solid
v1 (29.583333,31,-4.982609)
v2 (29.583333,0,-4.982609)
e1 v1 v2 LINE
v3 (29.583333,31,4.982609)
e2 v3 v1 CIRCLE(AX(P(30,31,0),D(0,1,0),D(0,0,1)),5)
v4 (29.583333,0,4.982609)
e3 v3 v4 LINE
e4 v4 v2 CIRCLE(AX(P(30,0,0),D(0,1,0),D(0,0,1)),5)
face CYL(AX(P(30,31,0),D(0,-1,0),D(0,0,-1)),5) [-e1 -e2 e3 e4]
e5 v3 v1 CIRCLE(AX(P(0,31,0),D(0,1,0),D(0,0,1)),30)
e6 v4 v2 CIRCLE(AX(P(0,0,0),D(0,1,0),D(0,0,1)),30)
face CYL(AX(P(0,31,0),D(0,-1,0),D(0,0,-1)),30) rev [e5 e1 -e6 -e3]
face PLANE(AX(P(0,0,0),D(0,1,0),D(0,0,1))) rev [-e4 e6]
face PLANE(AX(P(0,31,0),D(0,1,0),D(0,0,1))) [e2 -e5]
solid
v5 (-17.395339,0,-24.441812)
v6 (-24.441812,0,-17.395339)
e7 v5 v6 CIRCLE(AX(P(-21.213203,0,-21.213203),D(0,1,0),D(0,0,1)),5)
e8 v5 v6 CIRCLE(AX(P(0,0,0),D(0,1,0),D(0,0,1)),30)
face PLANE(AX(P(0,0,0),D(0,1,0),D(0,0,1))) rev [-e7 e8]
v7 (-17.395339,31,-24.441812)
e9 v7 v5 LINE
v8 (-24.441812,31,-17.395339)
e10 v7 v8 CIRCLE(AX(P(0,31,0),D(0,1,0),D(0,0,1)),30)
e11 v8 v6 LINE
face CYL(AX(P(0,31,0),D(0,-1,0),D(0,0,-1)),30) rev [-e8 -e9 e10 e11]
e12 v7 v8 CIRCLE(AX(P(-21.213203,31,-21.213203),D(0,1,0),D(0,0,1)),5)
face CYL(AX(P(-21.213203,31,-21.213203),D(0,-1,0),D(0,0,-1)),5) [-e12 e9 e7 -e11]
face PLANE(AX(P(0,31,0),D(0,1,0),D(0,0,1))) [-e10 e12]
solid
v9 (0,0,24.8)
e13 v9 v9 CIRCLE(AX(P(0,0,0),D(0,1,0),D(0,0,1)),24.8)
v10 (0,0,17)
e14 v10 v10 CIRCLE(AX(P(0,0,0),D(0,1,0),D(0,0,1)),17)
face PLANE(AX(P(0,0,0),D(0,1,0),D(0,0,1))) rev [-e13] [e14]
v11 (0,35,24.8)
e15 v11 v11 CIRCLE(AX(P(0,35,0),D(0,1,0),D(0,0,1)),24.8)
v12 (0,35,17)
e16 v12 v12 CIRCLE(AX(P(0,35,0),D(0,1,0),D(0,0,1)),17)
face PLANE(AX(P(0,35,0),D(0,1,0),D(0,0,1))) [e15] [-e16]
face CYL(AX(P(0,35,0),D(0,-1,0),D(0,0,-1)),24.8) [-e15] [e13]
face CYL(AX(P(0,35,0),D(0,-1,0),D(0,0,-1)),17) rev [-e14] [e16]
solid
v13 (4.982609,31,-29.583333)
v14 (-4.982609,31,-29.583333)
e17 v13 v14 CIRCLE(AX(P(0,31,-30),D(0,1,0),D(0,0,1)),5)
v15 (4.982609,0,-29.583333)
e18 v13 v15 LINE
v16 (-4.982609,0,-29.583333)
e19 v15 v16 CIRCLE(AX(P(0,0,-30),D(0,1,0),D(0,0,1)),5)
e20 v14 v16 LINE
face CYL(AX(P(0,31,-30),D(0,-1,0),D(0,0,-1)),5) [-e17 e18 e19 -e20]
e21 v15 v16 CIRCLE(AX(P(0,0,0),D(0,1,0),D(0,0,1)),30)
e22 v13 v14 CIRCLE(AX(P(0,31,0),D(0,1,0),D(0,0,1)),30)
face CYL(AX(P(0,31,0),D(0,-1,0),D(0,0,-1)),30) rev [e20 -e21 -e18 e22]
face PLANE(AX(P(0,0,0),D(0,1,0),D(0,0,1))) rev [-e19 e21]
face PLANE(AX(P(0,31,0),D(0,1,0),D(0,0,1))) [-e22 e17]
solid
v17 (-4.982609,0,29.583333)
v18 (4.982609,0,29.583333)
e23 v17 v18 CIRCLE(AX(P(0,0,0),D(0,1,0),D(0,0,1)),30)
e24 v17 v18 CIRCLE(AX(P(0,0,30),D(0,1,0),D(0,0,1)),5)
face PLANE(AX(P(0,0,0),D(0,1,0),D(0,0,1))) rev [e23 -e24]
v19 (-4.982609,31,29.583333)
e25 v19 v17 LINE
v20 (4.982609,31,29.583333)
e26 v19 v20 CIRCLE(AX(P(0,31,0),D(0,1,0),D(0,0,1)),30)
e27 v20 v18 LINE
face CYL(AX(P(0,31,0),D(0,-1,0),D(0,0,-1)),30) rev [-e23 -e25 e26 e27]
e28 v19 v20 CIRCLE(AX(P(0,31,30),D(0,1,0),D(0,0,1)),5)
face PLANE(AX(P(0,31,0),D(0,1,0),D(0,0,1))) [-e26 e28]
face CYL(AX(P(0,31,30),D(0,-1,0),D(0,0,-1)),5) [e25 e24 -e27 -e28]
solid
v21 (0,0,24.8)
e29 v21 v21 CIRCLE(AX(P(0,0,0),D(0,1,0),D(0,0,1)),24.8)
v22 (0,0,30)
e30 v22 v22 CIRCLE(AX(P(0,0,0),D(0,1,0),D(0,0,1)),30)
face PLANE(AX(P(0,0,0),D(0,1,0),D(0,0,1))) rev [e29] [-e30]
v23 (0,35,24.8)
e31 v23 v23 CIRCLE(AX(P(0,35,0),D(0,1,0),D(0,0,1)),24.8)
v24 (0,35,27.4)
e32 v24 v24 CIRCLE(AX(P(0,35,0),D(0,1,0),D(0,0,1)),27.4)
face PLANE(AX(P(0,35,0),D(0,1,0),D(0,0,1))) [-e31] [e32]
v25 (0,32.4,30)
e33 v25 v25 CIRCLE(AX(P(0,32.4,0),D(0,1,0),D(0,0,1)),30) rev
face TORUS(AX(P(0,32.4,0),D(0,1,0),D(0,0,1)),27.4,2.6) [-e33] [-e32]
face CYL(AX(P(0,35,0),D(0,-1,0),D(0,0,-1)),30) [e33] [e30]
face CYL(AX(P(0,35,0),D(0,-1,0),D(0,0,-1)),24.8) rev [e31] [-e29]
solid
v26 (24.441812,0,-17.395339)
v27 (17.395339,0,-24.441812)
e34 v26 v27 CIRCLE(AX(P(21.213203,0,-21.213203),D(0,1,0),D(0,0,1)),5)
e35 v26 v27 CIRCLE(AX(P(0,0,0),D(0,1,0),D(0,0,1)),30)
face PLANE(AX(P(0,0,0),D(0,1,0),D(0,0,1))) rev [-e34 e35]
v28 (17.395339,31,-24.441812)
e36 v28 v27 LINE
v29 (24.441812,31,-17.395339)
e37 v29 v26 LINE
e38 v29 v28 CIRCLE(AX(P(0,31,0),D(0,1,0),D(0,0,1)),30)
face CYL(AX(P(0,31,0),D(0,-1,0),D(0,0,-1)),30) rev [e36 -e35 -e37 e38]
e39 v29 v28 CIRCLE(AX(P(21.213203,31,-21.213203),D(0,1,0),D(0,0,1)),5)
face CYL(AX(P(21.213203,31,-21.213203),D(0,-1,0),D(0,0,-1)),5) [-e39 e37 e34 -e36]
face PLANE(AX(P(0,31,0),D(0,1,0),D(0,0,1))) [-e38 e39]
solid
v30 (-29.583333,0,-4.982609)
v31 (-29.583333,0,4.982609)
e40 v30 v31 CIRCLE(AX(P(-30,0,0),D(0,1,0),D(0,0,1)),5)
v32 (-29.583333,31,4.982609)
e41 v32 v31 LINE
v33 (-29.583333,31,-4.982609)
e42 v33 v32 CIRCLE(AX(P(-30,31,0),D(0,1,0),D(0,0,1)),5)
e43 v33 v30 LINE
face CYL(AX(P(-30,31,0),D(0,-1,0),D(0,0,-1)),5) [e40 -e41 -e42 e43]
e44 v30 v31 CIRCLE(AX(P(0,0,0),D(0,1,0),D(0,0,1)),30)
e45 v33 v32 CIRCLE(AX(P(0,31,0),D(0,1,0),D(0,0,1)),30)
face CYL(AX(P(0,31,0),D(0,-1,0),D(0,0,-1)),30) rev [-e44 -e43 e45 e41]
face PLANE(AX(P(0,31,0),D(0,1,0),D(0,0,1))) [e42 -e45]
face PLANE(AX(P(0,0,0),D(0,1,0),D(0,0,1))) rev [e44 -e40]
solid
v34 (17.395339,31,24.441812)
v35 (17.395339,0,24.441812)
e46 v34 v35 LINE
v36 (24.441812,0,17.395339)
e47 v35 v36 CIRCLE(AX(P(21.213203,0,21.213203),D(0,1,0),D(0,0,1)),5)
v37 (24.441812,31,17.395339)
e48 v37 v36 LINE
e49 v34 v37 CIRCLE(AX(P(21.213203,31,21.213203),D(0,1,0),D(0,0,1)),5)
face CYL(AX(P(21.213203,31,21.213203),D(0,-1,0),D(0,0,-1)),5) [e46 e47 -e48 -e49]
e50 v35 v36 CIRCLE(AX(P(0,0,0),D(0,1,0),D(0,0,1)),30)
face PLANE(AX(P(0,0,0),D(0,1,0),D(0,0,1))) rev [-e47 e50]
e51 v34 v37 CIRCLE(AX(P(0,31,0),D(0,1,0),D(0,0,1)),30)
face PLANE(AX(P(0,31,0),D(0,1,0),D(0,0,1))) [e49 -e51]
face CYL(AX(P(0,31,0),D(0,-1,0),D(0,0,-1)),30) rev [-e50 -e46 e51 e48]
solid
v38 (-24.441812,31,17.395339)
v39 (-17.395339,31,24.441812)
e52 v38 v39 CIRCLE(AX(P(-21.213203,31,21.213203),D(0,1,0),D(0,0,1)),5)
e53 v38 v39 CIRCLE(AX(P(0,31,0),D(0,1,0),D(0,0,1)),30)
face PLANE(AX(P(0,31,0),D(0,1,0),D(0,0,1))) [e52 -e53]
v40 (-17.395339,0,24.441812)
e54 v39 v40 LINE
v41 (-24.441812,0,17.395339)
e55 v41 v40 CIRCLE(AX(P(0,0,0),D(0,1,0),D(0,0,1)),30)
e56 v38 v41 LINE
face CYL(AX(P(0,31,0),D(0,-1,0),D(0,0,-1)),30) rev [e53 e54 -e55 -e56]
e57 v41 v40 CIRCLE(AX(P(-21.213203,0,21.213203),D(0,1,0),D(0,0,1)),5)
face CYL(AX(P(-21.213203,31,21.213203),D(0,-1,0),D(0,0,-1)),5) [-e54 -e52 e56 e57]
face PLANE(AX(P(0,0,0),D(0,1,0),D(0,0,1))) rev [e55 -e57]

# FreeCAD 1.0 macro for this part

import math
import FreeCAD as App
import Part
import Sketcher
Q = App.Units.Quantity


def edges_at(feature, points):
    """Names of the edges that pass closest to the given points."""
    edges = feature.Shape.Edges
    near = lambda p: min(range(len(edges)), key=lambda i: edges[i].distToShape(Part.Vertex(*p))[0])
    return sorted({f"Edge{near(p) + 1}" for p in points})

doc = App.newDocument("Part")
body = doc.addObject("PartDesign::Body", "Body")

# Sketch on XZ plane
sketch1 = body.newObject("Sketcher::SketchObject", "Sketch")
sketch1.AttachmentSupport = (doc.getObject("XZ_Plane"), [""])
sketch1.MapMode = "FlatFace"
sketch1.addGeometry([
    Part.Circle(App.Vector(0, 0, 0), App.Vector(0, 0, 1), 30),
    Part.Circle(App.Vector(0, 0, 0), App.Vector(0, 0, 1), 25),
], False)
sketch1.addConstraint([
    Sketcher.Constraint("Coincident", 0, 3, -1, 1),
    Sketcher.Constraint("Coincident", 1, 3, -1, 1),
    Sketcher.Constraint("Diameter", 0, Q("60 mm")),
    Sketcher.Constraint("Diameter", 1, Q("49.6 mm")),
])
pad1 = body.newObject("PartDesign::Pad", "Pad")
pad1.Profile = sketch1
pad1.Length = 35
pad1.Reversed = True
doc.recompute()

fillet = body.newObject("PartDesign::Fillet", "Fillet")
fillet.Base = (pad1, edges_at(pad1, [(0, 35, -30)]))
fillet.Radius = 2.6
body2 = doc.addObject("PartDesign::Body", "Body001")

# Sketch on XZ plane
sketch2 = body2.newObject("Sketcher::SketchObject", "Sketch001")
sketch2.AttachmentSupport = (doc.getObject("XZ_Plane001"), [""])
sketch2.MapMode = "FlatFace"
sketch2.addGeometry([
    Part.ArcOfCircle(Part.Circle(App.Vector(0, 30, 0), App.Vector(0, 0, 1), 5), math.radians(-5), math.radians(185)),
    Part.ArcOfCircle(Part.Circle(App.Vector(0, 0, 0), App.Vector(0, 0, 1), 30), math.radians(80.44), math.radians(99.56)),
], False)
sketch2.addConstraint([
    Sketcher.Constraint("Coincident", 0, 1, 1, 1),
    Sketcher.Constraint("Coincident", 1, 2, 0, 2),
    Sketcher.Constraint("Coincident", 1, 3, -1, 1),
    Sketcher.Constraint("PointOnObject", 0, 3, -2),
    Sketcher.Constraint("Radius", 0, Q("5 mm")),
    Sketcher.Constraint("Radius", 1, Q("30 mm")),
    Sketcher.Constraint("DistanceY", -1, 1, 0, 3, Q("30 mm")),
])
pad2 = body2.newObject("PartDesign::Pad", "Pad001")
pad2.Profile = sketch2
pad2.Length = 31
pad2.Reversed = True
body3 = doc.addObject("PartDesign::Body", "Body002")

# Sketch on XZ plane
sketch3 = body3.newObject("Sketcher::SketchObject", "Sketch002")
sketch3.AttachmentSupport = (doc.getObject("XZ_Plane002"), [""])
sketch3.MapMode = "FlatFace"
sketch3.addGeometry([
    Part.ArcOfCircle(Part.Circle(App.Vector(21, 21, 0), App.Vector(0, 0, 1), 5), math.radians(-50), math.radians(140)),
    Part.ArcOfCircle(Part.Circle(App.Vector(0, 0, 0), App.Vector(0, 0, 1), 30), math.radians(35.44), math.radians(54.56)),
], False)
sketch3.addConstraint([
    Sketcher.Constraint("Coincident", 0, 1, 1, 1),
    Sketcher.Constraint("Coincident", 1, 2, 0, 2),
    Sketcher.Constraint("Coincident", 1, 3, -1, 1),
    Sketcher.Constraint("Radius", 0, Q("5 mm")),
    Sketcher.Constraint("Radius", 1, Q("30 mm")),
    Sketcher.Constraint("DistanceX", -1, 1, 0, 1, Q("24.441812 mm")),
    Sketcher.Constraint("DistanceX", -1, 1, 1, 2, Q("17.395339 mm")),
])
pad3 = body3.newObject("PartDesign::Pad", "Pad002")
pad3.Profile = sketch3
pad3.Length = 31
pad3.Reversed = True
body4 = doc.addObject("PartDesign::Body", "Body003")

# Sketch on XZ plane
sketch4 = body4.newObject("Sketcher::SketchObject", "Sketch003")
sketch4.AttachmentSupport = (doc.getObject("XZ_Plane003"), [""])
sketch4.MapMode = "FlatFace"
sketch4.addGeometry([
    Part.ArcOfCircle(Part.Circle(App.Vector(0, 0, 0), App.Vector(0, 0, 1), 30), math.radians(-9.56), math.radians(0)),
    Part.ArcOfCircle(Part.Circle(App.Vector(0, 0, 0), App.Vector(0, 0, 1), 30), math.radians(0), math.radians(9.56)),
    Part.ArcOfCircle(Part.Circle(App.Vector(30, 0, 0), App.Vector(0, 0, 1), 5), math.radians(-95), math.radians(95)),
], False)
sketch4.addConstraint([
    Sketcher.Constraint("Tangent", 0, 2, 1, 1),
    Sketcher.Constraint("Coincident", 1, 2, 2, 2),
    Sketcher.Constraint("Coincident", 2, 1, 0, 1),
    Sketcher.Constraint("Coincident", 0, 3, -1, 1),
    Sketcher.Constraint("Coincident", 0, 2, 2, 3),
    Sketcher.Constraint("Equal", 0, 1),
    Sketcher.Constraint("PointOnObject", 2, 3, -1),
    Sketcher.Constraint("Radius", 0, Q("30 mm")),
    Sketcher.Constraint("Radius", 2, Q("5 mm")),
])
pad4 = body4.newObject("PartDesign::Pad", "Pad003")
pad4.Profile = sketch4
pad4.Length = 31
pad4.Reversed = True
body5 = doc.addObject("PartDesign::Body", "Body004")

# Sketch on XZ plane
sketch5 = body5.newObject("Sketcher::SketchObject", "Sketch004")
sketch5.AttachmentSupport = (doc.getObject("XZ_Plane004"), [""])
sketch5.MapMode = "FlatFace"
sketch5.addGeometry([
    Part.ArcOfCircle(Part.Circle(App.Vector(0, 0, 0), App.Vector(0, 0, 1), 30), math.radians(-54.56), math.radians(-35.44)),
    Part.ArcOfCircle(Part.Circle(App.Vector(21, -21, 0), App.Vector(0, 0, 1), 5), math.radians(-140), math.radians(50)),
], False)
sketch5.addConstraint([
    Sketcher.Constraint("Coincident", 0, 1, 1, 1),
    Sketcher.Constraint("Coincident", 1, 2, 0, 2),
    Sketcher.Constraint("Coincident", 0, 3, -1, 1),
    Sketcher.Constraint("Radius", 0, Q("30 mm")),
    Sketcher.Constraint("Radius", 1, Q("5 mm")),
    Sketcher.Constraint("DistanceX", -1, 1, 0, 1, Q("17.395339 mm")),
    Sketcher.Constraint("DistanceX", -1, 1, 1, 2, Q("24.441812 mm")),
])
pad5 = body5.newObject("PartDesign::Pad", "Pad004")
pad5.Profile = sketch5
pad5.Length = 31
pad5.Reversed = True
body6 = doc.addObject("PartDesign::Body", "Body005")

# Sketch on XZ plane
sketch6 = body6.newObject("Sketcher::SketchObject", "Sketch005")
sketch6.AttachmentSupport = (doc.getObject("XZ_Plane005"), [""])
sketch6.MapMode = "FlatFace"
sketch6.addGeometry([
    Part.ArcOfCircle(Part.Circle(App.Vector(-21, 21, 0), App.Vector(0, 0, 1), 5), math.radians(40), math.radians(230)),
    Part.ArcOfCircle(Part.Circle(App.Vector(0, 0, 0), App.Vector(0, 0, 1), 30), math.radians(125.44), math.radians(144.56)),
], False)
sketch6.addConstraint([
    Sketcher.Constraint("Coincident", 0, 1, 1, 1),
    Sketcher.Constraint("Coincident", 1, 2, 0, 2),
    Sketcher.Constraint("Coincident", 1, 3, -1, 1),
    Sketcher.Constraint("Radius", 0, Q("5 mm")),
    Sketcher.Constraint("Radius", 1, Q("30 mm")),
    Sketcher.Constraint("DistanceX", 0, 1, -1, 1, Q("17.395339 mm")),
    Sketcher.Constraint("DistanceX", 1, 2, -1, 1, Q("24.441812 mm")),
])
pad6 = body6.newObject("PartDesign::Pad", "Pad005")
pad6.Profile = sketch6
pad6.Length = 31
pad6.Reversed = True
body7 = doc.addObject("PartDesign::Body", "Body006")

# Sketch on XZ plane
sketch7 = body7.newObject("Sketcher::SketchObject", "Sketch006")
sketch7.AttachmentSupport = (doc.getObject("XZ_Plane006"), [""])
sketch7.MapMode = "FlatFace"
sketch7.addGeometry([
    Part.ArcOfCircle(Part.Circle(App.Vector(0, 0, 0), App.Vector(0, 0, 1), 30), math.radians(-99.56), math.radians(-80.44)),
    Part.ArcOfCircle(Part.Circle(App.Vector(0, -30, 0), App.Vector(0, 0, 1), 5), math.radians(175), math.radians(365)),
], False)
sketch7.addConstraint([
    Sketcher.Constraint("Coincident", 0, 1, 1, 1),
    Sketcher.Constraint("Coincident", 1, 2, 0, 2),
    Sketcher.Constraint("Coincident", 0, 3, -1, 1),
    Sketcher.Constraint("PointOnObject", 1, 3, -2),
    Sketcher.Constraint("Radius", 0, Q("30 mm")),
    Sketcher.Constraint("Radius", 1, Q("5 mm")),
    Sketcher.Constraint("DistanceY", 1, 3, -1, 1, Q("30 mm")),
])
pad7 = body7.newObject("PartDesign::Pad", "Pad006")
pad7.Profile = sketch7
pad7.Length = 31
pad7.Reversed = True
body8 = doc.addObject("PartDesign::Body", "Body007")

# Sketch on XZ plane
sketch8 = body8.newObject("Sketcher::SketchObject", "Sketch007")
sketch8.AttachmentSupport = (doc.getObject("XZ_Plane007"), [""])
sketch8.MapMode = "FlatFace"
sketch8.addGeometry([
    Part.ArcOfCircle(Part.Circle(App.Vector(0, 0, 0), App.Vector(0, 0, 1), 30), math.radians(170.44), math.radians(189.56)),
    Part.ArcOfCircle(Part.Circle(App.Vector(-30, 0, 0), App.Vector(0, 0, 1), 5), math.radians(85), math.radians(275)),
], False)
sketch8.addConstraint([
    Sketcher.Constraint("Coincident", 0, 1, 1, 1),
    Sketcher.Constraint("Coincident", 1, 2, 0, 2),
    Sketcher.Constraint("Coincident", 0, 3, -1, 1),
    Sketcher.Constraint("PointOnObject", 1, 3, -1),
    Sketcher.Constraint("Radius", 0, Q("30 mm")),
    Sketcher.Constraint("Radius", 1, Q("5 mm")),
    Sketcher.Constraint("DistanceX", 1, 3, -1, 1, Q("30 mm")),
])
pad8 = body8.newObject("PartDesign::Pad", "Pad007")
pad8.Profile = sketch8
pad8.Length = 31
pad8.Reversed = True
body9 = doc.addObject("PartDesign::Body", "Body008")

# Sketch on XZ plane
sketch9 = body9.newObject("Sketcher::SketchObject", "Sketch008")
sketch9.AttachmentSupport = (doc.getObject("XZ_Plane008"), [""])
sketch9.MapMode = "FlatFace"
sketch9.addGeometry([
    Part.ArcOfCircle(Part.Circle(App.Vector(0, 0, 0), App.Vector(0, 0, 1), 30), math.radians(-144.56), math.radians(-125.44)),
    Part.ArcOfCircle(Part.Circle(App.Vector(-21, -21, 0), App.Vector(0, 0, 1), 5), math.radians(130), math.radians(320)),
], False)
sketch9.addConstraint([
    Sketcher.Constraint("Coincident", 0, 1, 1, 1),
    Sketcher.Constraint("Coincident", 1, 2, 0, 2),
    Sketcher.Constraint("Coincident", 0, 3, -1, 1),
    Sketcher.Constraint("Radius", 0, Q("30 mm")),
    Sketcher.Constraint("Radius", 1, Q("5 mm")),
    Sketcher.Constraint("DistanceX", 0, 1, -1, 1, Q("24.441812 mm")),
    Sketcher.Constraint("DistanceX", 1, 2, -1, 1, Q("17.395339 mm")),
])
pad9 = body9.newObject("PartDesign::Pad", "Pad008")
pad9.Profile = sketch9
pad9.Length = 31
pad9.Reversed = True
body10 = doc.addObject("PartDesign::Body", "Body009")

# Sketch on XZ plane
sketch10 = body10.newObject("Sketcher::SketchObject", "Sketch009")
sketch10.AttachmentSupport = (doc.getObject("XZ_Plane009"), [""])
sketch10.MapMode = "FlatFace"
sketch10.addGeometry([
    Part.Circle(App.Vector(0, 0, 0), App.Vector(0, 0, 1), 25),
    Part.Circle(App.Vector(0, 0, 0), App.Vector(0, 0, 1), 17),
], False)
sketch10.addConstraint([
    Sketcher.Constraint("Coincident", 0, 3, -1, 1),
    Sketcher.Constraint("Coincident", 1, 3, -1, 1),
    Sketcher.Constraint("Diameter", 1, Q("34 mm")),
    Sketcher.Constraint("Diameter", 0, Q("49.6 mm")),
])
pad10 = body10.newObject("PartDesign::Pad", "Pad009")
pad10.Profile = sketch10
pad10.Length = 35
pad10.Reversed = True

doc.recompute()
